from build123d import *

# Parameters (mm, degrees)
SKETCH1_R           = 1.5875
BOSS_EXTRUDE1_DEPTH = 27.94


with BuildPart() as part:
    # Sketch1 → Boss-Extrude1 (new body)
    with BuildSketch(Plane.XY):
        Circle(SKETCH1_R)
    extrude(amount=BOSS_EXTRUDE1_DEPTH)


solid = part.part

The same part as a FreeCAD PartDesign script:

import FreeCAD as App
import Part
import Sketcher
from FreeCAD import Vector
Q = App.Units.Quantity

doc = App.newDocument("Part")
body = doc.addObject("PartDesign::Body", "Body")

sketch1 = body.newObject("Sketcher::SketchObject", "Sketch")
sketch1.AttachmentSupport = (doc.getObject("XY_Plane"), [""])
sketch1.MapMode = "FlatFace"
sketch1.addGeometry(Part.Circle(Vector(0, 0, 0), Vector(0, 0, 1), 1.6), False)
sketch1.addConstraint(Sketcher.Constraint("Coincident", 0, 3, -1, 1))
sketch1.addConstraint(Sketcher.Constraint("Diameter", 0, Q("0.125 in")))
pad1 = body.newObject("PartDesign::Pad", "Pad")
pad1.Profile = sketch1
pad1.Length = Q("1.1 in")

doc.recompute()
